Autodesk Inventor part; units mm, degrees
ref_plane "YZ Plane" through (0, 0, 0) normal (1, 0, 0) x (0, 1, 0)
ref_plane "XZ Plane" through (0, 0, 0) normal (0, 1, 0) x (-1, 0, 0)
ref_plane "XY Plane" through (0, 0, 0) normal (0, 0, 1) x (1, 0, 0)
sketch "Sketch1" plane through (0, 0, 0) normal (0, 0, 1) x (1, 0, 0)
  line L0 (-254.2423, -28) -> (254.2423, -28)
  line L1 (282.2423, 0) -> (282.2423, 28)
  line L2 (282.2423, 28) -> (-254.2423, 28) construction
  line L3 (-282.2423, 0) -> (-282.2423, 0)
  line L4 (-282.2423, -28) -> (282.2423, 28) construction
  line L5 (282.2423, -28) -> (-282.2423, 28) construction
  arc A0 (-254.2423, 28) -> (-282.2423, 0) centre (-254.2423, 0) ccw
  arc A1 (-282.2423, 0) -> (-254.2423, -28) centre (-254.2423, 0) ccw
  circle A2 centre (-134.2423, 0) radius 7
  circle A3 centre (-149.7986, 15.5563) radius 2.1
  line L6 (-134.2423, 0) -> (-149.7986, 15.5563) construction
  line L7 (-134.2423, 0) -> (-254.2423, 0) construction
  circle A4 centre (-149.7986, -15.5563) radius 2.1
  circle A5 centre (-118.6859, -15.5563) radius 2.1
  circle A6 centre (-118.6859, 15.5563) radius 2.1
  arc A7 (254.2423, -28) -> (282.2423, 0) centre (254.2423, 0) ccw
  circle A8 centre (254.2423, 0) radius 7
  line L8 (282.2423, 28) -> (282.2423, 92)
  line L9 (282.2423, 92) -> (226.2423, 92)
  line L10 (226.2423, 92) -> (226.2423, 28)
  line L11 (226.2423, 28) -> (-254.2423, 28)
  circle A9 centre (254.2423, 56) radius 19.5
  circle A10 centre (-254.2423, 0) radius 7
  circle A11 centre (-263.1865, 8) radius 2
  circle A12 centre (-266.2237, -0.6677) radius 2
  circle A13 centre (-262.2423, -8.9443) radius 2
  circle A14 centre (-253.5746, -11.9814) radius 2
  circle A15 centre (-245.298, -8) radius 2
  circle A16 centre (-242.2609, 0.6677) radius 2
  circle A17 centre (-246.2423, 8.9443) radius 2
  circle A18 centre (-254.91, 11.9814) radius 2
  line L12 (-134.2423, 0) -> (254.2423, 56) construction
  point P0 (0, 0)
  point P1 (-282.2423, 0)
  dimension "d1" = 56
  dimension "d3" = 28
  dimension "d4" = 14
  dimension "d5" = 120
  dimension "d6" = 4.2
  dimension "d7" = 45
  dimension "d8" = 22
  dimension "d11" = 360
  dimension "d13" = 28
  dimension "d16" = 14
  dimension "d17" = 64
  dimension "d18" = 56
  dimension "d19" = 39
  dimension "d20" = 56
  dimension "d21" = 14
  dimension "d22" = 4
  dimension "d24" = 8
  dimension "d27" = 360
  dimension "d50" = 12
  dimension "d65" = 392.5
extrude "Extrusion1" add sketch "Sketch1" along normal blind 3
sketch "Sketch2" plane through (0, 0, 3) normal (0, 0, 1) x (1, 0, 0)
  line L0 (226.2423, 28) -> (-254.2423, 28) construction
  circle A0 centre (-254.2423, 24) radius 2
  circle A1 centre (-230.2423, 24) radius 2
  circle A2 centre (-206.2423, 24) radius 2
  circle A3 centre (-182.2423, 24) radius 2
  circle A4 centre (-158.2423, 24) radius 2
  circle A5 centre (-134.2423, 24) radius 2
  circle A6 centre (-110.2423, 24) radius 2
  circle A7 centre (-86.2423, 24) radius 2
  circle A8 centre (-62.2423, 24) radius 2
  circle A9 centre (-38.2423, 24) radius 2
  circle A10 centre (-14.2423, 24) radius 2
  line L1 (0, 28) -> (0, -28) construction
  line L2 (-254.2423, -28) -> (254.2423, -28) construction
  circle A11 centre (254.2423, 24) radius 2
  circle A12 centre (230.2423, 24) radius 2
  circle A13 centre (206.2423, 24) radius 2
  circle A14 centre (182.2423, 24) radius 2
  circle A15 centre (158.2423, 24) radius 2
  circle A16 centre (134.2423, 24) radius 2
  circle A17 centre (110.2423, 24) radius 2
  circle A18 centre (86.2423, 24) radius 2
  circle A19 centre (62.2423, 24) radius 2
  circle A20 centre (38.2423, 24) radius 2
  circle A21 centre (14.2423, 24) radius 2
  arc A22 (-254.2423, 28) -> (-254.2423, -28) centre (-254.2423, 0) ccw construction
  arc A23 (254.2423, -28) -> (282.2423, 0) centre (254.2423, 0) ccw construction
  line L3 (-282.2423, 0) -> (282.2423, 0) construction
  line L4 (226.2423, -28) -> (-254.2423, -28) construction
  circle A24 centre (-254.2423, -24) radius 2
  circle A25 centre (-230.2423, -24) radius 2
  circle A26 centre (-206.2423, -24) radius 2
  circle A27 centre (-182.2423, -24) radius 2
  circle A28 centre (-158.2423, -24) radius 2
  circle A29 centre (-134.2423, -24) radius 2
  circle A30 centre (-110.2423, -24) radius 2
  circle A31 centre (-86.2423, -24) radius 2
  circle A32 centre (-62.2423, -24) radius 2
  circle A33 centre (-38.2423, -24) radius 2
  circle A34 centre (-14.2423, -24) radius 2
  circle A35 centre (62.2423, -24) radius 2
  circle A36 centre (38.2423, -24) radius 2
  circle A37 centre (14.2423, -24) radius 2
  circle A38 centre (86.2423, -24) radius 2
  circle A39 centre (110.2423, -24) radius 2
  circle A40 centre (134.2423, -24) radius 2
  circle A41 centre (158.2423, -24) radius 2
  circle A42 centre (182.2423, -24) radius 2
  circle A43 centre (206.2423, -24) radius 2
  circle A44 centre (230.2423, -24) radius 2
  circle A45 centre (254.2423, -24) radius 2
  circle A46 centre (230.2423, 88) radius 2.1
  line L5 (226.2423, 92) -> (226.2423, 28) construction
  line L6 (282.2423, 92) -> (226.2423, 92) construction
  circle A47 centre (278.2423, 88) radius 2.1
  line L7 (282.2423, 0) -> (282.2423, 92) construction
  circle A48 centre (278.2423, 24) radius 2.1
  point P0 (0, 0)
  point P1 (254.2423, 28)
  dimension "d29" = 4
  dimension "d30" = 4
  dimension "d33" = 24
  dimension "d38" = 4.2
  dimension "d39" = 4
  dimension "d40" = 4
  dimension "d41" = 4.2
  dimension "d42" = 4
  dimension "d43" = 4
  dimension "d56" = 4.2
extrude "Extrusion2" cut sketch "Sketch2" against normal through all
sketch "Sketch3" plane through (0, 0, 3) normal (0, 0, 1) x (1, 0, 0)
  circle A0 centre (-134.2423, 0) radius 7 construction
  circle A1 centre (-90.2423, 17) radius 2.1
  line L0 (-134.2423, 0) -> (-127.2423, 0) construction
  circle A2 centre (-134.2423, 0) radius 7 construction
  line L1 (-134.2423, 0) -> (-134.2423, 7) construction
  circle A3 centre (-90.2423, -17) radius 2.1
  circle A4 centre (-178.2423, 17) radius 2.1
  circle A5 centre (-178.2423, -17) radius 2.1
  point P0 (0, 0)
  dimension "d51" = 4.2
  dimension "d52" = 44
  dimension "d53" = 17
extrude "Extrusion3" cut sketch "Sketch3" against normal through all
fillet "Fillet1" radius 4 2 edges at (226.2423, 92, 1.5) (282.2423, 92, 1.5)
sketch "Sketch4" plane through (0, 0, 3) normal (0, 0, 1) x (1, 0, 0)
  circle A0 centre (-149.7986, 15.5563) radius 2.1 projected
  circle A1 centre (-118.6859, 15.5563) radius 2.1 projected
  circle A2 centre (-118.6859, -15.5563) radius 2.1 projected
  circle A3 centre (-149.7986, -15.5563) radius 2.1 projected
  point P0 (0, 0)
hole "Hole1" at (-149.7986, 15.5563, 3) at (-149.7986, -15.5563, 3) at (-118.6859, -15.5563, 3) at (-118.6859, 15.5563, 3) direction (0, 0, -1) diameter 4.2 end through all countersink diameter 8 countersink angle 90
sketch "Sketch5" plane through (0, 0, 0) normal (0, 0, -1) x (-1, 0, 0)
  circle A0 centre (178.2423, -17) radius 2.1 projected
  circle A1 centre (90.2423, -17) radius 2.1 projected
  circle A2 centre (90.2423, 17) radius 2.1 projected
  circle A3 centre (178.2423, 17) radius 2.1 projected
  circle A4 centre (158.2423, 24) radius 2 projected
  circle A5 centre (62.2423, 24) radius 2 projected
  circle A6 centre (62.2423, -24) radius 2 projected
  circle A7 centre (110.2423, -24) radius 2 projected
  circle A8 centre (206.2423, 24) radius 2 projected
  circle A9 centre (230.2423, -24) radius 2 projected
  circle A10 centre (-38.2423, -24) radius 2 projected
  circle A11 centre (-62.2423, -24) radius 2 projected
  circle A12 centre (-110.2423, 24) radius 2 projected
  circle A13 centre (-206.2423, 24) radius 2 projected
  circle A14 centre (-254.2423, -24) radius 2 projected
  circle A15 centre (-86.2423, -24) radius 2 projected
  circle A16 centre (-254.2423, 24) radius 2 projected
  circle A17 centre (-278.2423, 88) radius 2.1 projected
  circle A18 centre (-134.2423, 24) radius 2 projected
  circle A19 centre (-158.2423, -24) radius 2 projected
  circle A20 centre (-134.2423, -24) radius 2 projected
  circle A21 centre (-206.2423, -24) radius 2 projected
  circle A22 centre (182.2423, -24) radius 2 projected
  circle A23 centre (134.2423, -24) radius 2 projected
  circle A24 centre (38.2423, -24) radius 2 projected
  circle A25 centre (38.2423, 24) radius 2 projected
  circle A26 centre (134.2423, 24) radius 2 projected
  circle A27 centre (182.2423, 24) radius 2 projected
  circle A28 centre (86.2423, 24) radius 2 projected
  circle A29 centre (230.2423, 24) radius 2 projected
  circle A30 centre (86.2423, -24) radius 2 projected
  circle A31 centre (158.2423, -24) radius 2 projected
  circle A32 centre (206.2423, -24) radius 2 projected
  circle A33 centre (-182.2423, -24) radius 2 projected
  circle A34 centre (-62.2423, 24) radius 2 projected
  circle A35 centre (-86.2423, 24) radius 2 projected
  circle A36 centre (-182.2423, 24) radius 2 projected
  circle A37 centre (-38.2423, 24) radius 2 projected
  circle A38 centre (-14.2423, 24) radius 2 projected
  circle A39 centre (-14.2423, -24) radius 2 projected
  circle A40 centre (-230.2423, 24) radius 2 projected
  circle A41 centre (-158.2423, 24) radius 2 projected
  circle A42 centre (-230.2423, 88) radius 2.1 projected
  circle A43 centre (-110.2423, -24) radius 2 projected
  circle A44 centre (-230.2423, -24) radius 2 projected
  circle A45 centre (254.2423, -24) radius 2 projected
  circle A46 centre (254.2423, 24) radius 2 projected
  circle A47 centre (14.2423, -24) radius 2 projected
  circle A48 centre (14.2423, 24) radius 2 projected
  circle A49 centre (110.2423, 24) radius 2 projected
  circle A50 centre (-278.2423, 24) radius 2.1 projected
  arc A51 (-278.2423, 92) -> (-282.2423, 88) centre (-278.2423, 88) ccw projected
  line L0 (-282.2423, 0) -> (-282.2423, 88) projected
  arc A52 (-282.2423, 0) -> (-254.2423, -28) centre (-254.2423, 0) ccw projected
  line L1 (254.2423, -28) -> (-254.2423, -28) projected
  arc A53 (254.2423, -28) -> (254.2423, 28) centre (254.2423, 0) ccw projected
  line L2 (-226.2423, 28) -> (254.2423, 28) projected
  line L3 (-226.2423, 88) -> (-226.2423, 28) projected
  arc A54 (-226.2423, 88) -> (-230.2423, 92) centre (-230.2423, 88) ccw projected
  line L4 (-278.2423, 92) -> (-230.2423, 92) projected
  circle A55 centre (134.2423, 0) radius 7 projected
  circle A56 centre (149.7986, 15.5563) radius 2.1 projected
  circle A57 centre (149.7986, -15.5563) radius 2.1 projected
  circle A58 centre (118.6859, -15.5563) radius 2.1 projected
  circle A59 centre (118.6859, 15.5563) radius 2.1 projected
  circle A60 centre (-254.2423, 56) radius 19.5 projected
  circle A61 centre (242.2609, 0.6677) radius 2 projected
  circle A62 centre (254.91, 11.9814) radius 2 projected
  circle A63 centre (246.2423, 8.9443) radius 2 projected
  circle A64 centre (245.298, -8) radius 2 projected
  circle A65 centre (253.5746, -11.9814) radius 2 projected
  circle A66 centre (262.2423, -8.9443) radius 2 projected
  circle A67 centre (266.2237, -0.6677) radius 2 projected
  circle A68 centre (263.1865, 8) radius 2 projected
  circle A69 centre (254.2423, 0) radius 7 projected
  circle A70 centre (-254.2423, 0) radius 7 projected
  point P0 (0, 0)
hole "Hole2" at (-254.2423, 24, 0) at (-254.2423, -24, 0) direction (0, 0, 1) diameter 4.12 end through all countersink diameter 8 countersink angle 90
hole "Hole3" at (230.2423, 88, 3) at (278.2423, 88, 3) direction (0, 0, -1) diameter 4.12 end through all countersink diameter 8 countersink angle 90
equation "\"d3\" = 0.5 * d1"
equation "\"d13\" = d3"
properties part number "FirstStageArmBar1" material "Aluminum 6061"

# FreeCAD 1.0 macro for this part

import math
import FreeCAD as App
import Part
import Sketcher
from FreeCAD import Vector


def edges_at(feature, points):
    """Names of the edges that pass closest to the given points."""
    edges = feature.Shape.Edges
    near = lambda p: min(range(len(edges)), key=lambda i: edges[i].distToShape(Part.Vertex(*p))[0])
    return sorted({f"Edge{near(p) + 1}" for p in points})

doc = App.newDocument("Part")
body = doc.addObject("PartDesign::Body", "Body")

# Sketch on XY plane
sketch1 = body.newObject("Sketcher::SketchObject", "Sketch")
sketch1.AttachmentSupport = (doc.getObject("XY_Plane"), [""])
sketch1.MapMode = "FlatFace"
sketch1.addGeometry([
    Part.ArcOfCircle(Part.Circle(Vector(-254.2423, 0, 0), Vector(0, 0, 1), 28), math.radians(90), math.radians(270)),  # 0
    Part.LineSegment(Vector(-254.2423, -28, 0), Vector(254.2423, -28, 0)),  # 1
    Part.ArcOfCircle(Part.Circle(Vector(254.2423, 0, 0), Vector(0, 0, 1), 28), math.radians(-90), math.radians(0)),  # 2
    Part.LineSegment(Vector(282.2423, 0, 0), Vector(282.2423, 92, 0)),  # 3
    Part.LineSegment(Vector(282.2423, 92, 0), Vector(226.2423, 92, 0)),  # 4
    Part.LineSegment(Vector(226.2423, 92, 0), Vector(226.2423, 28, 0)),  # 5
    Part.LineSegment(Vector(226.2423, 28, 0), Vector(-254.2423, 28, 0)),  # 6
    Part.Circle(Vector(-149.7986, -15.5563, 0), Vector(0, 0, 1), 2.1),  # 7
    Part.Circle(Vector(-253.5746, -11.9814, 0), Vector(0, 0, 1), 2),  # 8
    Part.Circle(Vector(-262.2423, -8.9443, 0), Vector(0, 0, 1), 2),  # 9
    Part.Circle(Vector(-245.298, -8, 0), Vector(0, 0, 1), 2),  # 10
    Part.Circle(Vector(-266.2237, -0.6677, 0), Vector(0, 0, 1), 2),  # 11
    Part.Circle(Vector(-254.2423, 0, 0), Vector(0, 0, 1), 7),  # 12
    Part.Circle(Vector(-242.2609, 0.6677, 0), Vector(0, 0, 1), 2),  # 13
    Part.Circle(Vector(-118.6859, -15.5563, 0), Vector(0, 0, 1), 2.1),  # 14
    Part.Circle(Vector(-134.2423, 0, 0), Vector(0, 0, 1), 7),  # 15
    Part.Circle(Vector(-263.1865, 8, 0), Vector(0, 0, 1), 2),  # 16
    Part.Circle(Vector(-246.2423, 8.9443, 0), Vector(0, 0, 1), 2),  # 17
    Part.Circle(Vector(-254.91, 11.9814, 0), Vector(0, 0, 1), 2),  # 18
    Part.Circle(Vector(-149.7986, 15.5563, 0), Vector(0, 0, 1), 2.1),  # 19
    Part.Circle(Vector(-118.6859, 15.5563, 0), Vector(0, 0, 1), 2.1),  # 20
    Part.Circle(Vector(254.2423, 0, 0), Vector(0, 0, 1), 7),  # 21
    Part.Circle(Vector(254.2423, 56, 0), Vector(0, 0, 1), 19.5),  # 22
], False)
sketch1.addConstraint([
    Sketcher.Constraint("Tangent", 0, 2, 1, 1),
    Sketcher.Constraint("Tangent", 1, 2, 2, 1),
    Sketcher.Constraint("Tangent", 2, 2, 3, 1),
    Sketcher.Constraint("Coincident", 3, 2, 4, 1),
    Sketcher.Constraint("Coincident", 4, 2, 5, 1),
    Sketcher.Constraint("Coincident", 5, 2, 6, 1),
    Sketcher.Constraint("Tangent", 6, 2, 0, 1),
    Sketcher.Constraint("Horizontal", 1),
    Sketcher.Constraint("Vertical", 3),
    Sketcher.Constraint("Horizontal", 4),
    Sketcher.Constraint("Vertical", 5),
    Sketcher.Constraint("Horizontal", 6),
    Sketcher.Constraint("Coincident", 12, 3, 0, 3),
    Sketcher.Constraint("Coincident", 21, 3, 2, 3),
    Sketcher.Constraint("Equal", 0, 2),
    Sketcher.Constraint("Equal", 8, 9),
    Sketcher.Constraint("Equal", 9, 10),
    Sketcher.Constraint("Equal", 10, 11),
    Sketcher.Constraint("Equal", 11, 13),
    Sketcher.Constraint("Equal", 7, 14),
    Sketcher.Constraint("Equal", 12, 15),
    Sketcher.Constraint("Equal", 13, 16),
    Sketcher.Constraint("Equal", 16, 17),
    Sketcher.Constraint("Equal", 17, 18),
    Sketcher.Constraint("Equal", 14, 19),
    Sketcher.Constraint("Equal", 19, 20),
    Sketcher.Constraint("Equal", 15, 21),
    Sketcher.Constraint("Symmetric", 0, 3, 2, 3, -1, 1),
    Sketcher.Constraint("Symmetric", 7, 3, 19, 3, -1),
    Sketcher.Constraint("Symmetric", 14, 3, 20, 3, -1),
    Sketcher.Constraint("PointOnObject", 15, 3, -1),
    Sketcher.Constraint("Horizontal", 7, 3, 14, 3),
    Sketcher.Constraint("Vertical", 21, 3, 22, 3),
    Sketcher.Constraint("Diameter", 8, 4.0),
    Sketcher.Constraint("Diameter", 12, 14.0),
    Sketcher.Constraint("Diameter", 22, 39.0),
    Sketcher.Constraint("Radius", 0, 28.0),
    Sketcher.Constraint("Diameter", 7, 4.2),
    Sketcher.Constraint("DistanceX", 4, 2, 4, 1, 56.0),
    Sketcher.Constraint("DistanceY", 5, 2, 5, 1, 64.0),
    Sketcher.Constraint("DistanceY", 10, 3, -1, 1, 8.0),
    Sketcher.Constraint("DistanceY", -1, 1, 16, 3, 8.0),
    Sketcher.Constraint("DistanceY", -1, 1, 22, 3, 56.0),
    Sketcher.Constraint("DistanceX", 9, 3, 0, 3, 8.0),
    Sketcher.Constraint("DistanceX", 0, 3, 17, 3, 8.0),
    Sketcher.Constraint("DistanceX", 18, 3, -1, 1, 254.91),
    Sketcher.Constraint("DistanceX", 1, 1, 1, 2, 508.4846),
    Sketcher.Constraint("DistanceX", 10, 3, -1, 1, 245.298),
    Sketcher.Constraint("DistanceX", 13, 3, -1, 1, 242.261),
    Sketcher.Constraint("DistanceX", 14, 3, -1, 1, 118.686),
    Sketcher.Constraint("DistanceX", 7, 3, 2, 3, 404.041),
    Sketcher.Constraint("DistanceX", 8, 3, 7, 3, 103.776),
    Sketcher.Constraint("DistanceY", 7, 3, 8, 3, 3.575),
    Sketcher.Constraint("DistanceY", 8, 3, 9, 3, 3.037),
    Sketcher.Constraint("DistanceX", 11, 3, 8, 3, 12.649),
    Sketcher.Constraint("DistanceY", 8, 3, 13, 3, 12.649),
    Sketcher.Constraint("DistanceY", 17, 3, 18, 3, 3.037),
    Sketcher.Constraint("DistanceY", 17, 3, 19, 3, 6.612),
    Sketcher.Constraint("DistanceY", 7, 3, -1, 1, 15.5563),
    Sketcher.Constraint("DistanceY", 11, 3, -1, 1, 0.6677),
    Sketcher.Constraint("DistanceX", 15, 3, -1, 1, 134.2423),
    Sketcher.Constraint("DistanceX", 16, 3, -1, 1, 263.1865),
])
pad1 = body.newObject("PartDesign::Pad", "Pad")
pad1.Profile = sketch1
pad1.Length = 3

# Sketch on XY plane
sketch2 = body.newObject("Sketcher::SketchObject", "Sketch001")
sketch2.AttachmentSupport = (doc.getObject("XY_Plane"), [""])
sketch2.MapMode = "FlatFace"
sketch2.AttachmentOffset = App.Placement(Vector(0, 0, 3), App.Rotation())
sketch2.addGeometry([
    Part.Circle(Vector(-254.2423, 24, 0), Vector(0, 0, 1), 2),  # 0
    Part.Circle(Vector(-230.2423, 24, 0), Vector(0, 0, 1), 2),  # 1
    Part.Circle(Vector(-206.2423, 24, 0), Vector(0, 0, 1), 2),  # 2
    Part.Circle(Vector(-182.2423, 24, 0), Vector(0, 0, 1), 2),  # 3
    Part.Circle(Vector(-158.2423, 24, 0), Vector(0, 0, 1), 2),  # 4
    Part.Circle(Vector(-134.2423, 24, 0), Vector(0, 0, 1), 2),  # 5
    Part.Circle(Vector(-110.2423, 24, 0), Vector(0, 0, 1), 2),  # 6
    Part.Circle(Vector(-86.2423, 24, 0), Vector(0, 0, 1), 2),  # 7
    Part.Circle(Vector(-62.2423, 24, 0), Vector(0, 0, 1), 2),  # 8
    Part.Circle(Vector(-38.2423, 24, 0), Vector(0, 0, 1), 2),  # 9
    Part.Circle(Vector(-14.2423, 24, 0), Vector(0, 0, 1), 2),  # 10
    Part.Circle(Vector(254.2423, 24, 0), Vector(0, 0, 1), 2),  # 11
    Part.Circle(Vector(230.2423, 24, 0), Vector(0, 0, 1), 2),  # 12
    Part.Circle(Vector(206.2423, 24, 0), Vector(0, 0, 1), 2),  # 13
    Part.Circle(Vector(182.2423, 24, 0), Vector(0, 0, 1), 2),  # 14
    Part.Circle(Vector(158.2423, 24, 0), Vector(0, 0, 1), 2),  # 15
    Part.Circle(Vector(134.2423, 24, 0), Vector(0, 0, 1), 2),  # 16
    Part.Circle(Vector(110.2423, 24, 0), Vector(0, 0, 1), 2),  # 17
    Part.Circle(Vector(86.2423, 24, 0), Vector(0, 0, 1), 2),  # 18
    Part.Circle(Vector(62.2423, 24, 0), Vector(0, 0, 1), 2),  # 19
    Part.Circle(Vector(38.2423, 24, 0), Vector(0, 0, 1), 2),  # 20
    Part.Circle(Vector(14.2423, 24, 0), Vector(0, 0, 1), 2),  # 21
    Part.Circle(Vector(-254.2423, -24, 0), Vector(0, 0, 1), 2),  # 22
    Part.Circle(Vector(-230.2423, -24, 0), Vector(0, 0, 1), 2),  # 23
    Part.Circle(Vector(-206.2423, -24, 0), Vector(0, 0, 1), 2),  # 24
    Part.Circle(Vector(-182.2423, -24, 0), Vector(0, 0, 1), 2),  # 25
    Part.Circle(Vector(-158.2423, -24, 0), Vector(0, 0, 1), 2),  # 26
    Part.Circle(Vector(-134.2423, -24, 0), Vector(0, 0, 1), 2),  # 27
    Part.Circle(Vector(-110.2423, -24, 0), Vector(0, 0, 1), 2),  # 28
    Part.Circle(Vector(-86.2423, -24, 0), Vector(0, 0, 1), 2),  # 29
    Part.Circle(Vector(-62.2423, -24, 0), Vector(0, 0, 1), 2),  # 30
    Part.Circle(Vector(-38.2423, -24, 0), Vector(0, 0, 1), 2),  # 31
    Part.Circle(Vector(-14.2423, -24, 0), Vector(0, 0, 1), 2),  # 32
    Part.Circle(Vector(62.2423, -24, 0), Vector(0, 0, 1), 2),  # 33
    Part.Circle(Vector(38.2423, -24, 0), Vector(0, 0, 1), 2),  # 34
    Part.Circle(Vector(14.2423, -24, 0), Vector(0, 0, 1), 2),  # 35
    Part.Circle(Vector(86.2423, -24, 0), Vector(0, 0, 1), 2),  # 36
    Part.Circle(Vector(110.2423, -24, 0), Vector(0, 0, 1), 2),  # 37
    Part.Circle(Vector(134.2423, -24, 0), Vector(0, 0, 1), 2),  # 38
    Part.Circle(Vector(158.2423, -24, 0), Vector(0, 0, 1), 2),  # 39
    Part.Circle(Vector(182.2423, -24, 0), Vector(0, 0, 1), 2),  # 40
    Part.Circle(Vector(206.2423, -24, 0), Vector(0, 0, 1), 2),  # 41
    Part.Circle(Vector(230.2423, -24, 0), Vector(0, 0, 1), 2),  # 42
    Part.Circle(Vector(254.2423, -24, 0), Vector(0, 0, 1), 2),  # 43
    Part.Circle(Vector(230.2423, 88, 0), Vector(0, 0, 1), 2.1),  # 44
    Part.Circle(Vector(278.2423, 88, 0), Vector(0, 0, 1), 2.1),  # 45
    Part.Circle(Vector(278.2423, 24, 0), Vector(0, 0, 1), 2.1),  # 46
], False)
sketch2.addConstraint([
    Sketcher.Constraint("Equal", 0, 1),
    Sketcher.Constraint("Equal", 1, 2),
    Sketcher.Constraint("Equal", 2, 3),
    Sketcher.Constraint("Equal", 3, 4),
    Sketcher.Constraint("Equal", 4, 5),
    Sketcher.Constraint("Equal", 5, 6),
    Sketcher.Constraint("Equal", 6, 7),
    Sketcher.Constraint("Equal", 7, 8),
    Sketcher.Constraint("Equal", 8, 9),
    Sketcher.Constraint("Equal", 9, 10),
    Sketcher.Constraint("Equal", 10, 11),
    Sketcher.Constraint("Equal", 11, 12),
    Sketcher.Constraint("Equal", 12, 13),
    Sketcher.Constraint("Equal", 13, 14),
    Sketcher.Constraint("Equal", 14, 15),
    Sketcher.Constraint("Equal", 15, 16),
    Sketcher.Constraint("Equal", 16, 17),
    Sketcher.Constraint("Equal", 17, 18),
    Sketcher.Constraint("Equal", 18, 19),
    Sketcher.Constraint("Equal", 19, 20),
    Sketcher.Constraint("Equal", 20, 21),
    Sketcher.Constraint("Equal", 21, 22),
    Sketcher.Constraint("Equal", 22, 23),
    Sketcher.Constraint("Equal", 23, 24),
    Sketcher.Constraint("Equal", 24, 25),
    Sketcher.Constraint("Equal", 25, 26),
    Sketcher.Constraint("Equal", 26, 27),
    Sketcher.Constraint("Equal", 27, 28),
    Sketcher.Constraint("Equal", 28, 29),
    Sketcher.Constraint("Equal", 29, 30),
    Sketcher.Constraint("Equal", 30, 31),
    Sketcher.Constraint("Equal", 31, 32),
    Sketcher.Constraint("Equal", 32, 33),
    Sketcher.Constraint("Equal", 33, 34),
    Sketcher.Constraint("Equal", 34, 35),
    Sketcher.Constraint("Equal", 35, 36),
    Sketcher.Constraint("Equal", 36, 37),
    Sketcher.Constraint("Equal", 37, 38),
    Sketcher.Constraint("Equal", 38, 39),
    Sketcher.Constraint("Equal", 39, 40),
    Sketcher.Constraint("Equal", 40, 41),
    Sketcher.Constraint("Equal", 41, 42),
    Sketcher.Constraint("Equal", 42, 43),
    Sketcher.Constraint("Equal", 44, 45),
    Sketcher.Constraint("Equal", 45, 46),
    Sketcher.Constraint("Symmetric", 11, 3, 22, 3, -1, 1),
    Sketcher.Constraint("Symmetric", 12, 3, 23, 3, -1, 1),
    Sketcher.Constraint("Symmetric", 13, 3, 24, 3, -1, 1),
    Sketcher.Constraint("Symmetric", 14, 3, 25, 3, -1, 1),
    Sketcher.Constraint("Symmetric", 15, 3, 26, 3, -1, 1),
    Sketcher.Constraint("Symmetric", 16, 3, 27, 3, -1, 1),
    Sketcher.Constraint("Symmetric", 17, 3, 28, 3, -1, 1),
    Sketcher.Constraint("Symmetric", 18, 3, 29, 3, -1, 1),
    Sketcher.Constraint("Symmetric", 19, 3, 30, 3, -1, 1),
    Sketcher.Constraint("Symmetric", 20, 3, 31, 3, -1, 1),
    Sketcher.Constraint("Symmetric", 21, 3, 32, 3, -1, 1),
    Sketcher.Constraint("Symmetric", 8, 3, 33, 3, -1, 1),
    Sketcher.Constraint("Symmetric", 9, 3, 34, 3, -1, 1),
    Sketcher.Constraint("Symmetric", 10, 3, 35, 3, -1, 1),
    Sketcher.Constraint("Symmetric", 7, 3, 36, 3, -1, 1),
    Sketcher.Constraint("Symmetric", 6, 3, 37, 3, -1, 1),
    Sketcher.Constraint("Symmetric", 5, 3, 38, 3, -1, 1),
    Sketcher.Constraint("Symmetric", 4, 3, 39, 3, -1, 1),
    Sketcher.Constraint("Symmetric", 3, 3, 40, 3, -1, 1),
    Sketcher.Constraint("Symmetric", 2, 3, 41, 3, -1, 1),
    Sketcher.Constraint("Symmetric", 1, 3, 42, 3, -1, 1),
    Sketcher.Constraint("Symmetric", 0, 3, 43, 3, -1, 1),
    Sketcher.Constraint("Symmetric", 0, 3, 11, 3, -2),
    Sketcher.Constraint("Symmetric", 1, 3, 12, 3, -2),
    Sketcher.Constraint("Symmetric", 2, 3, 13, 3, -2),
    Sketcher.Constraint("Symmetric", 3, 3, 14, 3, -2),
    Sketcher.Constraint("Symmetric", 4, 3, 15, 3, -2),
    Sketcher.Constraint("Symmetric", 5, 3, 16, 3, -2),
    Sketcher.Constraint("Symmetric", 6, 3, 17, 3, -2),
    Sketcher.Constraint("Symmetric", 7, 3, 18, 3, -2),
    Sketcher.Constraint("Symmetric", 8, 3, 19, 3, -2),
    Sketcher.Constraint("Symmetric", 9, 3, 20, 3, -2),
    Sketcher.Constraint("Symmetric", 10, 3, 21, 3, -2),
    Sketcher.Constraint("Horizontal", 0, 3, 1, 3),
    Sketcher.Constraint("Horizontal", 1, 3, 2, 3),
    Sketcher.Constraint("Horizontal", 2, 3, 3, 3),
    Sketcher.Constraint("Horizontal", 3, 3, 4, 3),
    Sketcher.Constraint("Horizontal", 4, 3, 5, 3),
    Sketcher.Constraint("Horizontal", 5, 3, 6, 3),
    Sketcher.Constraint("Horizontal", 6, 3, 7, 3),
    Sketcher.Constraint("Horizontal", 7, 3, 8, 3),
    Sketcher.Constraint("Horizontal", 8, 3, 9, 3),
    Sketcher.Constraint("Horizontal", 9, 3, 10, 3),
    Sketcher.Constraint("Horizontal", 44, 3, 45, 3),
    Sketcher.Constraint("Horizontal", 21, 3, 46, 3),
    Sketcher.Constraint("Vertical", 42, 3, 44, 3),
    Sketcher.Constraint("Vertical", 45, 3, 46, 3),
    Sketcher.Constraint("Diameter", 0, 4.0),
    Sketcher.Constraint("Diameter", 44, 4.2),
    Sketcher.Constraint("DistanceY", -1, 1, 0, 3, 24.0),
    Sketcher.Constraint("DistanceX", 0, 3, 1, 3, 24.0),
    Sketcher.Constraint("DistanceX", 1, 3, 2, 3, 24.0),
    Sketcher.Constraint("DistanceX", 2, 3, 3, 3, 24.0),
    Sketcher.Constraint("DistanceX", 3, 3, 4, 3, 24.0),
    Sketcher.Constraint("DistanceX", 4, 3, 5, 3, 24.0),
    Sketcher.Constraint("DistanceX", 5, 3, 6, 3, 24.0),
    Sketcher.Constraint("DistanceX", 6, 3, 7, 3, 24.0),
    Sketcher.Constraint("DistanceX", 7, 3, 8, 3, 24.0),
    Sketcher.Constraint("DistanceX", 8, 3, 9, 3, 24.0),
    Sketcher.Constraint("DistanceX", 9, 3, 10, 3, 24.0),
    Sketcher.Constraint("DistanceX", 11, 3, 45, 3, 24.0),
    Sketcher.Constraint("DistanceY", -1, 1, 44, 3, 88.0),
    Sketcher.Constraint("DistanceX", 0, 3, -1, 1, 254.2423),
])
pocket1 = body.newObject("PartDesign::Pocket", "Pocket")
pocket1.Profile = sketch2
pocket1.Type = "ThroughAll"

# Sketch on XY plane
sketch3 = body.newObject("Sketcher::SketchObject", "Sketch002")
sketch3.AttachmentSupport = (doc.getObject("XY_Plane"), [""])
sketch3.MapMode = "FlatFace"
sketch3.AttachmentOffset = App.Placement(Vector(0, 0, 3), App.Rotation())
sketch3.addGeometry([
    Part.Circle(Vector(-90.2423, 17, 0), Vector(0, 0, 1), 2.1),
    Part.Circle(Vector(-90.2423, -17, 0), Vector(0, 0, 1), 2.1),
    Part.Circle(Vector(-178.2423, 17, 0), Vector(0, 0, 1), 2.1),
    Part.Circle(Vector(-178.2423, -17, 0), Vector(0, 0, 1), 2.1),
], False)
sketch3.addConstraint([
    Sketcher.Constraint("Equal", 0, 1),
    Sketcher.Constraint("Equal", 1, 2),
    Sketcher.Constraint("Equal", 2, 3),
    Sketcher.Constraint("Symmetric", 0, 3, 1, 3, -1),
    Sketcher.Constraint("Symmetric", 2, 3, 3, 3, -1),
    Sketcher.Constraint("Horizontal", 0, 3, 2, 3),
    Sketcher.Constraint("Diameter", 0, 4.2),
    Sketcher.Constraint("DistanceY", -1, 1, 0, 3, 17.0),
    Sketcher.Constraint("DistanceX", 2, 3, 0, 3, 88.0),
    Sketcher.Constraint("DistanceX", 0, 3, -1, 1, 90.2423),
])
pocket2 = body.newObject("PartDesign::Pocket", "Pocket001")
pocket2.Profile = sketch3
pocket2.Type = "ThroughAll"
doc.recompute()

fillet = body.newObject("PartDesign::Fillet", "Fillet")
fillet.Base = (pocket2, edges_at(pocket2, [(226.242, 92, 1.5), (282.242, 92, 1.5)]))
fillet.Radius = 4

# Sketch on XY plane
sketch4 = body.newObject("Sketcher::SketchObject", "Sketch003")
sketch4.AttachmentSupport = (doc.getObject("XY_Plane"), [""])
sketch4.MapMode = "FlatFace"
sketch4.AttachmentOffset = App.Placement(Vector(0, 0, 3), App.Rotation())
sketch4.addGeometry([
    Part.Circle(Vector(-149.7986, 15.5563, 0), Vector(0, 0, 1), 2.1),
    Part.Circle(Vector(-149.7986, -15.5563, 0), Vector(0, 0, 1), 2.1),
    Part.Circle(Vector(-118.6859, -15.5563, 0), Vector(0, 0, 1), 2.1),
    Part.Circle(Vector(-118.6859, 15.5563, 0), Vector(0, 0, 1), 2.1),
], False)
sketch4.addConstraint([
    Sketcher.Constraint("Equal", 0, 1),
    Sketcher.Constraint("Equal", 1, 2),
    Sketcher.Constraint("Equal", 2, 3),
    Sketcher.Constraint("Symmetric", 0, 3, 1, 3, -1),
    Sketcher.Constraint("Symmetric", 2, 3, 3, 3, -1),
    Sketcher.Constraint("Horizontal", 1, 3, 2, 3),
    Sketcher.Constraint("Diameter", 0, 4.2),
    Sketcher.Constraint("DistanceX", 2, 3, -1, 1, 118.686),
    Sketcher.Constraint("DistanceX", 0, 3, -1, 1, 149.7986),
    Sketcher.Constraint("DistanceY", -1, 1, 0, 3, 15.5563),
])
doc.recompute()
hole = body.newObject("PartDesign::Hole", "Hole")
hole.Profile = sketch4
hole.ThreadType = "None"
hole.Diameter = 4.2
hole.DepthType = "ThroughAll"
hole.HoleCutType = "Countersink"
hole.HoleCutDiameter = 8
hole.HoleCutCountersinkAngle = 90

# Sketch on XY plane
sketch5 = body.newObject("Sketcher::SketchObject", "Sketch004")
sketch5.AttachmentSupport = (doc.getObject("XY_Plane"), [""])
sketch5.MapMode = "FlatFace"
sketch5.addGeometry([
    Part.Circle(Vector(-254.2423, 24, 0), Vector(0, 0, 1), 2.06),
    Part.Circle(Vector(-254.2423, -24, 0), Vector(0, 0, 1), 2.06),
], False)
sketch5.addConstraint([
    Sketcher.Constraint("Equal", 0, 1),
    Sketcher.Constraint("Symmetric", 0, 3, 1, 3, -1),
    Sketcher.Constraint("Diameter", 0, 4.12),
    Sketcher.Constraint("DistanceY", -1, 1, 0, 3, 24.0),
    Sketcher.Constraint("DistanceX", 0, 3, -1, 1, 254.2423),
])
doc.recompute()
hole2 = body.newObject("PartDesign::Hole", "Hole001")
hole2.Profile = sketch5
hole2.ThreadType = "None"
hole2.Diameter = 4.12
hole2.DepthType = "ThroughAll"
hole2.HoleCutType = "Countersink"
hole2.HoleCutDiameter = 8
hole2.HoleCutCountersinkAngle = 90
hole2.Reversed = True

# Sketch on XY plane
sketch6 = body.newObject("Sketcher::SketchObject", "Sketch005")
sketch6.AttachmentSupport = (doc.getObject("XY_Plane"), [""])
sketch6.MapMode = "FlatFace"
sketch6.AttachmentOffset = App.Placement(Vector(0, 0, 3), App.Rotation())
sketch6.addGeometry([
    Part.Circle(Vector(230.2423, 88, 0), Vector(0, 0, 1), 2.06),
    Part.Circle(Vector(278.2423, 88, 0), Vector(0, 0, 1), 2.06),
], False)
sketch6.addConstraint([
    Sketcher.Constraint("Equal", 0, 1),
    Sketcher.Constraint("Horizontal", 0, 3, 1, 3),
    Sketcher.Constraint("Diameter", 0, 4.12),
    Sketcher.Constraint("DistanceY", -1, 1, 0, 3, 88.0),
    Sketcher.Constraint("DistanceX", 0, 3, 1, 3, 48.0),
    Sketcher.Constraint("DistanceX", -1, 1, 0, 3, 230.2423),
])
doc.recompute()
hole3 = body.newObject("PartDesign::Hole", "Hole002")
hole3.Profile = sketch6
hole3.ThreadType = "None"
hole3.Diameter = 4.12
hole3.DepthType = "ThroughAll"
hole3.HoleCutType = "Countersink"
hole3.HoleCutDiameter = 8
hole3.HoleCutCountersinkAngle = 90

doc.recompute()
